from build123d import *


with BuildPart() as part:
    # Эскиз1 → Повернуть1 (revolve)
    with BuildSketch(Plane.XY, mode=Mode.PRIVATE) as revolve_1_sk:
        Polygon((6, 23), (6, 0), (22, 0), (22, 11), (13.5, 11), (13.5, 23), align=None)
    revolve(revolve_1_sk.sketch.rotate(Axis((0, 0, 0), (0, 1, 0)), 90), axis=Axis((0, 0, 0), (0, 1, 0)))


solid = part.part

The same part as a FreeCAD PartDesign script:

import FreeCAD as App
import Part
import Sketcher
from FreeCAD import Vector


def add_polygon(sketch, points):
    """Adds a closed chain of lines whose ends are joined by coincident constraints."""
    first, n = sketch.GeometryCount, len(points)
    for a, b in zip(points, points[1:] + points[:1]):
        sketch.addGeometry(Part.LineSegment(App.Vector(*a, 0), App.Vector(*b, 0)), False)
    for i in range(n):
        sketch.addConstraint(Sketcher.Constraint("Coincident", first + i, 2, first + (i + 1) % n, 1))

doc = App.newDocument("Part")
body = doc.addObject("PartDesign::Body", "Body")

sketch1 = body.newObject("Sketcher::SketchObject", "Sketch")
sketch1.AttachmentSupport = (doc.getObject("XY_Plane"), [""])
sketch1.MapMode = "FlatFace"
add_polygon(sketch1, [(6, 23), (6, 0), (22, 0), (22, 11), (13.5, 11), (13.5, 23)])
sketch1.addConstraint([
    Sketcher.Constraint("Vertical", 0),
    Sketcher.Constraint("Horizontal", 1),
    Sketcher.Constraint("Vertical", 2),
    Sketcher.Constraint("Horizontal", 3),
    Sketcher.Constraint("Vertical", 4),
    Sketcher.Constraint("Horizontal", 5),
    Sketcher.Constraint("PointOnObject", 0, 2, -1),
    Sketcher.Constraint("DistanceX", 1, 1, 1, 2, 16.0),
    Sketcher.Constraint("DistanceY", 0, 2, 0, 1, 23.0),
    Sketcher.Constraint("DistanceY", 2, 1, 2, 2, 11.0),
    Sketcher.Constraint("DistanceX", 3, 2, 3, 1, 8.5),
    Sketcher.Constraint("DistanceX", -1, 1, 0, 2, 6.0),
])
revolution = body.newObject("PartDesign::Revolution", "Revolution")
revolution.Profile = sketch1
revolution.ReferenceAxis = (sketch1, ["V_Axis"])
revolution.Angle = 360

doc.recompute()
